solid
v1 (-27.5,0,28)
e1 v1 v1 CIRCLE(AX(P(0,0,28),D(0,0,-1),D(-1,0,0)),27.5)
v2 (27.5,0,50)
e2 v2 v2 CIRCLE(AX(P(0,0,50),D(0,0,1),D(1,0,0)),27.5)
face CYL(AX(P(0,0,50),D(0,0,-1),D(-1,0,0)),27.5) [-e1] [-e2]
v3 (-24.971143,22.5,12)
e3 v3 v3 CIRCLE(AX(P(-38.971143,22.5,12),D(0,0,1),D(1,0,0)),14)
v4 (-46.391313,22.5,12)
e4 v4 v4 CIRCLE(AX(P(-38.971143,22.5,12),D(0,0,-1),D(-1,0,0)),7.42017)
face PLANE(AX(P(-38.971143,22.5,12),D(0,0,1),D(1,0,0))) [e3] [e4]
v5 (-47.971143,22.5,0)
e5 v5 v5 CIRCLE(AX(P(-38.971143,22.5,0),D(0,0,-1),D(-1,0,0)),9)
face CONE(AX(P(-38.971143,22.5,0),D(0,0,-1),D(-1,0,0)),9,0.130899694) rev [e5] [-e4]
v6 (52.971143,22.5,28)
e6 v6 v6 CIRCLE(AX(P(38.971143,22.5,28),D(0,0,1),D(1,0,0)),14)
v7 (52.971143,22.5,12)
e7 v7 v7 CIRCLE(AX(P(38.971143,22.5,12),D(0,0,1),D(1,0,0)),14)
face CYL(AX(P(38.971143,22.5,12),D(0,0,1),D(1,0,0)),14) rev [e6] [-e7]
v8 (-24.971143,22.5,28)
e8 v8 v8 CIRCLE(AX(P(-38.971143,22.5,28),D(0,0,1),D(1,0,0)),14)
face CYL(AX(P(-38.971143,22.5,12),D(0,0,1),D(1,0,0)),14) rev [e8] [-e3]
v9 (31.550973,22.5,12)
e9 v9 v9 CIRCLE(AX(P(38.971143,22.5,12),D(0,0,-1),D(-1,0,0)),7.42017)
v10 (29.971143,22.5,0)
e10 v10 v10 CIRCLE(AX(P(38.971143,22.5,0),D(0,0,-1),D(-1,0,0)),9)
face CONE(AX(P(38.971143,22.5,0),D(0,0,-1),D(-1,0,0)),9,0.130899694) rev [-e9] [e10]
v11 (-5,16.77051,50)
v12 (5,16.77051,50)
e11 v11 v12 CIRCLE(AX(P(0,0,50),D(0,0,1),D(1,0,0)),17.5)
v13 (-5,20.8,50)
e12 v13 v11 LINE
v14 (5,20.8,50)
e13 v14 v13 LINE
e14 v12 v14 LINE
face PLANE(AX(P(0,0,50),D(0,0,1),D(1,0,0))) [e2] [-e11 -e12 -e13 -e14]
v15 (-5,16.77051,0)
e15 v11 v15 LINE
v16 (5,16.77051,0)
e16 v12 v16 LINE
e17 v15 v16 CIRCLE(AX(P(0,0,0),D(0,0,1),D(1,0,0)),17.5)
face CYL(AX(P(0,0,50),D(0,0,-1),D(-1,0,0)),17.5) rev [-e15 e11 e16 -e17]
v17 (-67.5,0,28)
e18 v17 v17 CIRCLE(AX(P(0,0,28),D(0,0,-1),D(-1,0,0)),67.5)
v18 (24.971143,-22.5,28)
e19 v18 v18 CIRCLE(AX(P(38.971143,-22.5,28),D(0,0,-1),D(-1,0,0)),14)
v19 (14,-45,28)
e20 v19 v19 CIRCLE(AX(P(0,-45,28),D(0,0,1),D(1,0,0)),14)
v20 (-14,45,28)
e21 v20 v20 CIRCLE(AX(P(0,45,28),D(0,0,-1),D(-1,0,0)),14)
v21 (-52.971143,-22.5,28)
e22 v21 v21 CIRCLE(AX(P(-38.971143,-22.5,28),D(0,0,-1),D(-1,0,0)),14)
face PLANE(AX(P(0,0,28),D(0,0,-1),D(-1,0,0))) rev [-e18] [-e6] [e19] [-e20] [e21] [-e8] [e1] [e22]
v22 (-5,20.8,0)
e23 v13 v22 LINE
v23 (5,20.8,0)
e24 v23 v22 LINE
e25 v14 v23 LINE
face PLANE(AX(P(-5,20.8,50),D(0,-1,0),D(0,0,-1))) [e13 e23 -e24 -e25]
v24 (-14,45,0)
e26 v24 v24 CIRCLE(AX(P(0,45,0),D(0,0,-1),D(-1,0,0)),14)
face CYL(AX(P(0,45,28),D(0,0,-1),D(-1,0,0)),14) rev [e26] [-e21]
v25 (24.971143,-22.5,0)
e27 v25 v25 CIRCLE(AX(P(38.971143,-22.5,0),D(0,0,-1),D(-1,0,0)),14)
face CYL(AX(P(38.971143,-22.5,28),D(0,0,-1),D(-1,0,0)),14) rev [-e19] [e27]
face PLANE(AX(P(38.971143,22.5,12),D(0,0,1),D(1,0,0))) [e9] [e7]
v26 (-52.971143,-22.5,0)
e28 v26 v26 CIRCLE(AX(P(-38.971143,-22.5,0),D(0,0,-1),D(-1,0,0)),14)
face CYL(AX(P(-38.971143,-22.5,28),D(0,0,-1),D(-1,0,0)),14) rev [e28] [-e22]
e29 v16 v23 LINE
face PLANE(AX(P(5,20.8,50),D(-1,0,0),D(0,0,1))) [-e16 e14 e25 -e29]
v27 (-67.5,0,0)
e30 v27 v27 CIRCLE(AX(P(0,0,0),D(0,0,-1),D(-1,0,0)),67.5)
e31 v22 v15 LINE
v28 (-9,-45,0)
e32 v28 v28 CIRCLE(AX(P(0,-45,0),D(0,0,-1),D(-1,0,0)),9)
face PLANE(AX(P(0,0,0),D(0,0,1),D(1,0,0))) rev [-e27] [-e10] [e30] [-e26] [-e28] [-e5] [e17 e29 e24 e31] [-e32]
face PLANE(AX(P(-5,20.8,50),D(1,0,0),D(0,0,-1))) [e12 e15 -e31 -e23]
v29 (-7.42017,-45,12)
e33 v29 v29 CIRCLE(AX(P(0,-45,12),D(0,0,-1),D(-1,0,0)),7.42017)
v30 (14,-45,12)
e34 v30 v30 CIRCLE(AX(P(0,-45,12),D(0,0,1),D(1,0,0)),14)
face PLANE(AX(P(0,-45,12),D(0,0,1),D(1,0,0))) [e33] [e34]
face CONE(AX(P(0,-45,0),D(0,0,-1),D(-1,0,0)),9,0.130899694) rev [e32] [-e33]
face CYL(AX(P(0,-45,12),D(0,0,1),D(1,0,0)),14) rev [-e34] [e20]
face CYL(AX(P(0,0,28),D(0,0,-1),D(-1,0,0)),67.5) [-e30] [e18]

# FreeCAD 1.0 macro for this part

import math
import FreeCAD as App
import Part
import Sketcher


def faces_at(feature, points):
    """Names of the faces that lie closest to the given points."""
    faces = feature.Shape.Faces
    near = lambda p: min(range(len(faces)), key=lambda i: faces[i].distToShape(Part.Vertex(*p))[0])
    return sorted({f"Face{near(p) + 1}" for p in points})

doc = App.newDocument("Part")
body = doc.addObject("PartDesign::Body", "Body")

# Sketch on XY plane
sketch1 = doc.addObject("Sketcher::SketchObject", "Sketch")
body.addObject(sketch1)
sketch1.AttachmentSupport = (doc.XY_Plane, [""])
sketch1.MapMode = "FlatFace"
sketch1.addGeometry([
    Part.Circle(App.Vector(0, 0, 0), App.Vector(0, 0, 1), 27.5),  # 0
    Part.LineSegment(App.Vector(-5, 16.8, 0), App.Vector(-5, 20.8, 0)),  # 1
    Part.LineSegment(App.Vector(-5, 20.8, 0), App.Vector(5, 20.8, 0)),  # 2
    Part.LineSegment(App.Vector(5, 20.8, 0), App.Vector(5, 16.8, 0)),  # 3
    Part.ArcOfCircle(Part.Circle(App.Vector(0, 0, 0), App.Vector(0, 0, 1), 17.5), math.radians(107), math.radians(433)),  # 4
], False)
sketch1.addConstraint([
    Sketcher.Constraint("Coincident", 1, 2, 2, 1),
    Sketcher.Constraint("Coincident", 2, 2, 3, 1),
    Sketcher.Constraint("Coincident", 3, 2, 4, 2),
    Sketcher.Constraint("Coincident", 4, 1, 1, 1),
    Sketcher.Constraint("Vertical", 1),
    Sketcher.Constraint("Horizontal", 2),
    Sketcher.Constraint("Vertical", 3),
    Sketcher.Constraint("Coincident", 0, 3, -1, 1),
    Sketcher.Constraint("Coincident", 4, 3, -1, 1),
    Sketcher.Constraint("Horizontal", 3, 2, 4, 1),
    Sketcher.Constraint("Diameter", 0, 55.0),
    Sketcher.Constraint("Radius", 4, 17.5),
    Sketcher.Constraint("DistanceX", 2, 1, 2, 2, 10.0),
    Sketcher.Constraint("DistanceY", -1, 1, 1, 2, 20.8),
])
pad1 = doc.addObject("PartDesign::Pad", "Pad")
body.addObject(pad1)
pad1.Profile = sketch1
pad1.Length = 50

# Sketch on XY plane
sketch2 = doc.addObject("Sketcher::SketchObject", "Sketch001")
body.addObject(sketch2)
sketch2.AttachmentSupport = (doc.XY_Plane, [""])
sketch2.MapMode = "FlatFace"
sketch2.addGeometry([
    Part.Circle(App.Vector(0, 0, 0), App.Vector(0, 0, 1), 68),
    Part.Circle(App.Vector(39, -22, 0), App.Vector(0, 0, 1), 14),
    Part.Circle(App.Vector(-39, -22, 0), App.Vector(0, 0, 1), 14),
    Part.Circle(App.Vector(0, 45, 0), App.Vector(0, 0, 1), 14),
], False)
sketch2.addConstraint([
    Sketcher.Constraint("Coincident", 0, 3, -1, 1),
    Sketcher.Constraint("Equal", 1, 2),
    Sketcher.Constraint("Equal", 2, 3),
    Sketcher.Constraint("Symmetric", 1, 3, 2, 3, -2),
    Sketcher.Constraint("PointOnObject", 3, 3, -2),
    Sketcher.Constraint("Diameter", 0, 135.0),
    Sketcher.Constraint("Diameter", 1, 28.0),
    Sketcher.Constraint("DistanceY", -1, 1, 3, 3, 45.0),
    Sketcher.Constraint("DistanceY", 1, 3, -1, 1, 22.5),
    Sketcher.Constraint("DistanceX", -1, 1, 1, 3, 38.971143),
])
pad2 = doc.addObject("PartDesign::Pad", "Pad001")
body.addObject(pad2)
pad2.Profile = sketch2
pad2.Length = 28
body2 = doc.addObject("PartDesign::Body", "Body001")

# Sketch on XY plane
sketch3 = doc.addObject("Sketcher::SketchObject", "Sketch002")
body2.addObject(sketch3)
sketch3.AttachmentSupport = (doc.getObject("XY_Plane001"), [""])
sketch3.MapMode = "FlatFace"
sketch3.addGeometry(Part.Circle(App.Vector(0, -45, 0), App.Vector(0, 0, 1), 9), False)
sketch3.addConstraint([
    Sketcher.Constraint("PointOnObject", 0, 3, -2),
    Sketcher.Constraint("Diameter", 0, 18.0),
    Sketcher.Constraint("DistanceY", 0, 3, -1, 1, 45.0),
])
pad3 = doc.addObject("PartDesign::Pad", "Pad002")
body2.addObject(pad3)
pad3.Profile = sketch3
pad3.Length = 12
doc.recompute()

draft = doc.addObject("PartDesign::Draft", "Draft")
body2.addObject(draft)
draft.Base = (pad3, faces_at(pad3, [(9, -45, 6)]))
draft.NeutralPlane = (doc.getObject("XY_Plane001"), [""])
draft.Angle = 7.5
draft.Reversed = False
doc.recompute()

boolean = doc.addObject("PartDesign::Boolean", "Boolean")
body.addObject(boolean)
boolean.Type = "Cut"
boolean.addObjects([body2])
body3 = doc.addObject("PartDesign::Body", "Body002")

# Sketch on XY plane
sketch4 = doc.addObject("Sketcher::SketchObject", "Sketch003")
body3.addObject(sketch4)
sketch4.AttachmentSupport = (doc.getObject("XY_Plane002"), [""])
sketch4.MapMode = "FlatFace"
sketch4.addGeometry(Part.Circle(App.Vector(39, 22, 0), App.Vector(0, 0, 1), 9), False)
sketch4.addConstraint([
    Sketcher.Constraint("Diameter", 0, 18.0),
    Sketcher.Constraint("DistanceY", -1, 1, 0, 3, 22.5),
    Sketcher.Constraint("DistanceX", -1, 1, 0, 3, 38.971143),
])
pad4 = doc.addObject("PartDesign::Pad", "Pad003")
body3.addObject(pad4)
pad4.Profile = sketch4
pad4.Length = 12
doc.recompute()

draft2 = doc.addObject("PartDesign::Draft", "Draft001")
body3.addObject(draft2)
draft2.Base = (pad4, faces_at(pad4, [(47.971, 22.5, 6)]))
draft2.NeutralPlane = (doc.getObject("XY_Plane002"), [""])
draft2.Angle = 7.5
draft2.Reversed = False
doc.recompute()

boolean2 = doc.addObject("PartDesign::Boolean", "Boolean001")
body.addObject(boolean2)
boolean2.Type = "Cut"
boolean2.addObjects([body3])
body4 = doc.addObject("PartDesign::Body", "Body003")

# Sketch on XY plane
sketch5 = doc.addObject("Sketcher::SketchObject", "Sketch004")
body4.addObject(sketch5)
sketch5.AttachmentSupport = (doc.getObject("XY_Plane003"), [""])
sketch5.MapMode = "FlatFace"
sketch5.addGeometry(Part.Circle(App.Vector(-39, 22, 0), App.Vector(0, 0, 1), 9), False)
sketch5.addConstraint([
    Sketcher.Constraint("Diameter", 0, 18.0),
    Sketcher.Constraint("DistanceY", -1, 1, 0, 3, 22.5),
    Sketcher.Constraint("DistanceX", 0, 3, -1, 1, 38.971143),
])
pad5 = doc.addObject("PartDesign::Pad", "Pad004")
body4.addObject(pad5)
pad5.Profile = sketch5
pad5.Length = 12
doc.recompute()

draft3 = doc.addObject("PartDesign::Draft", "Draft002")
body4.addObject(draft3)
draft3.Base = (pad5, faces_at(pad5, [(-29.971, 22.5, 6)]))
draft3.NeutralPlane = (doc.getObject("XY_Plane003"), [""])
draft3.Angle = 7.5
draft3.Reversed = False
doc.recompute()

boolean3 = doc.addObject("PartDesign::Boolean", "Boolean002")
body.addObject(boolean3)
boolean3.Type = "Cut"
boolean3.addObjects([body4])

# Sketch on XY plane
sketch6 = doc.addObject("Sketcher::SketchObject", "Sketch005")
body.addObject(sketch6)
sketch6.AttachmentSupport = (doc.XY_Plane, [""])
sketch6.MapMode = "FlatFace"
sketch6.AttachmentOffset = App.Placement(App.Vector(0, 0, 28), App.Rotation())
sketch6.addGeometry([
    Part.Circle(App.Vector(0, -45, 0), App.Vector(0, 0, 1), 14),
    Part.Circle(App.Vector(-39, 22, 0), App.Vector(0, 0, 1), 14),
    Part.Circle(App.Vector(39, 22, 0), App.Vector(0, 0, 1), 14),
], False)
sketch6.addConstraint([
    Sketcher.Constraint("Equal", 0, 1),
    Sketcher.Constraint("Equal", 1, 2),
    Sketcher.Constraint("Symmetric", 1, 3, 2, 3, -2),
    Sketcher.Constraint("PointOnObject", 0, 3, -2),
    Sketcher.Constraint("Diameter", 0, 28.0),
    Sketcher.Constraint("DistanceY", 0, 3, -1, 1, 45.0),
    Sketcher.Constraint("DistanceY", -1, 1, 1, 3, 22.5),
    Sketcher.Constraint("DistanceX", 1, 3, -1, 1, 38.971143),
])
pocket1 = doc.addObject("PartDesign::Pocket", "Pocket")
body.addObject(pocket1)
pocket1.Profile = sketch6
pocket1.Length = 16

# Sketch on XY plane
sketch7 = doc.addObject("Sketcher::SketchObject", "Sketch006")
body.addObject(sketch7)
sketch7.AttachmentSupport = (doc.XY_Plane, [""])
sketch7.MapMode = "FlatFace"
sketch7.AttachmentOffset = App.Placement(App.Vector(0, 0, -22), App.Rotation())
sketch7.addGeometry([
    Part.LineSegment(App.Vector(-5, 20.8, 0), App.Vector(-5, 16.8, 0)),
    Part.ArcOfCircle(Part.Circle(App.Vector(0, 0, 0), App.Vector(0, 0, 1), 17.5), math.radians(107), math.radians(433)),
    Part.LineSegment(App.Vector(5, 16.8, 0), App.Vector(5, 20.8, 0)),
    Part.LineSegment(App.Vector(5, 20.8, 0), App.Vector(-5, 20.8, 0)),
], False)
sketch7.addConstraint([
    Sketcher.Constraint("Coincident", 0, 2, 1, 1),
    Sketcher.Constraint("Coincident", 1, 2, 2, 1),
    Sketcher.Constraint("Coincident", 2, 2, 3, 1),
    Sketcher.Constraint("Coincident", 3, 2, 0, 1),
    Sketcher.Constraint("Vertical", 0),
    Sketcher.Constraint("Vertical", 2),
    Sketcher.Constraint("Horizontal", 3),
    Sketcher.Constraint("Coincident", 1, 3, -1, 1),
    Sketcher.Constraint("Horizontal", 0, 2, 1, 2),
    Sketcher.Constraint("Radius", 1, 17.5),
    Sketcher.Constraint("DistanceX", 3, 2, 3, 1, 10.0),
    Sketcher.Constraint("DistanceY", -1, 1, 2, 2, 20.8),
])
pocket2 = doc.addObject("PartDesign::Pocket", "Pocket001")
body.addObject(pocket2)
pocket2.Profile = sketch7
pocket2.Length = 50
pocket2.Reversed = True

doc.recompute()
